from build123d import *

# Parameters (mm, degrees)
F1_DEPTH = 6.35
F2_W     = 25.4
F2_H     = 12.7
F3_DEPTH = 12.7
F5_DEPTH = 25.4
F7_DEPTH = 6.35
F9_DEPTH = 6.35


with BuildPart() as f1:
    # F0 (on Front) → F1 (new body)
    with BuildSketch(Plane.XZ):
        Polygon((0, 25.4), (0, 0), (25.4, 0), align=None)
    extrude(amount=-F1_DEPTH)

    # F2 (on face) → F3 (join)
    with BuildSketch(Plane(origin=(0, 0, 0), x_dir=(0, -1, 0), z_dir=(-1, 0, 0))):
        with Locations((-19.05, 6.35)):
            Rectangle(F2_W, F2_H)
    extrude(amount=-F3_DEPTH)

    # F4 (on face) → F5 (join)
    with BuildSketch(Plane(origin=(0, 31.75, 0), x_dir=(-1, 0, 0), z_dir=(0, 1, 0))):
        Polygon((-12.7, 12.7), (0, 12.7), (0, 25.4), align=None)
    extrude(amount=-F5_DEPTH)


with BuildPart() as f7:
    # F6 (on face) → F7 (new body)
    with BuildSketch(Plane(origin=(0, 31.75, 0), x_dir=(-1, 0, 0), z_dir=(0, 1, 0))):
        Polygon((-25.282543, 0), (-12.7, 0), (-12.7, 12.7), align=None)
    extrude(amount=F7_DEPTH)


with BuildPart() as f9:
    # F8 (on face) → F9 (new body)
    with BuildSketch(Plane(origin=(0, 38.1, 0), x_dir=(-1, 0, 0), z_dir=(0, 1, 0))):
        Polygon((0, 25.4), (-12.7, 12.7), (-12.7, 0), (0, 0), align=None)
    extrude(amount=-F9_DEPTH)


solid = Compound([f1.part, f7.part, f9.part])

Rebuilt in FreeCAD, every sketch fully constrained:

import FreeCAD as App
import Part
import Sketcher
Q = App.Units.Quantity


def add_polygon(sketch, points):
    """Adds a closed chain of lines whose ends are joined by coincident constraints."""
    first, n = sketch.GeometryCount, len(points)
    for a, b in zip(points, points[1:] + points[:1]):
        sketch.addGeometry(Part.LineSegment(App.Vector(*a, 0), App.Vector(*b, 0)), False)
    for i in range(n):
        sketch.addConstraint(Sketcher.Constraint("Coincident", first + i, 2, first + (i + 1) % n, 1))

doc = App.newDocument("Part")
body = doc.addObject("PartDesign::Body", "Body")

# Sketch on XZ plane
sketch1 = body.newObject("Sketcher::SketchObject", "Sketch")
sketch1.AttachmentSupport = (doc.getObject("XZ_Plane"), [""])
sketch1.MapMode = "FlatFace"
add_polygon(sketch1, [(0, 25.4), (0, 0), (25.4, 0)])  # lines 0-2
sketch1.addConstraint([
    Sketcher.Constraint("Vertical", 0),
    Sketcher.Constraint("Horizontal", 1),
    Sketcher.Constraint("Coincident", 0, 2, -1, 1),
    Sketcher.Constraint("Equal", 1, 0),
    Sketcher.Constraint("DistanceX", 1, 1, 1, 2, Q("1 in")),
])
pad1 = body.newObject("PartDesign::Pad", "Pad")
pad1.Profile = sketch1
pad1.Length = Q("0.25 in")
pad1.Reversed = True

# Sketch on YZ plane
sketch2 = body.newObject("Sketcher::SketchObject", "Sketch001")
sketch2.AttachmentSupport = (doc.getObject("YZ_Plane"), [""])
sketch2.MapMode = "FlatFace"
add_polygon(sketch2, [(31.75, 12.7), (31.75, 0), (6.35, 0), (6.35, 12.7)])  # lines 0-3
sketch2.addConstraint([
    Sketcher.Constraint("Vertical", 0),
    Sketcher.Constraint("Horizontal", 1),
    Sketcher.Constraint("Vertical", 2),
    Sketcher.Constraint("Horizontal", 3),
    Sketcher.Constraint("PointOnObject", 0, 2, -1),
    Sketcher.Constraint("DistanceX", 1, 2, 1, 1, Q("1 in")),
    Sketcher.Constraint("DistanceY", 0, 2, 0, 1, Q("0.5 in")),
    Sketcher.Constraint("DistanceX", -1, 1, 0, 2, Q("1.25 in")),
])
pad2 = body.newObject("PartDesign::Pad", "Pad001")
pad2.Profile = sketch2
pad2.Length = Q("0.5 in")

# Sketch on XZ plane
sketch3 = body.newObject("Sketcher::SketchObject", "Sketch002")
sketch3.AttachmentSupport = (doc.getObject("XZ_Plane"), [""])
sketch3.MapMode = "FlatFace"
sketch3.AttachmentOffset = App.Placement(App.Vector(0, 0, -1.25 * 25.4), App.Rotation())
add_polygon(sketch3, [(12.7, 12.7), (0, 12.7), (0, 25.4)])  # lines 0-2
sketch3.addConstraint([
    Sketcher.Constraint("Horizontal", 0),
    Sketcher.Constraint("Vertical", 1),
    Sketcher.Constraint("PointOnObject", 0, 2, -2),
    Sketcher.Constraint("Equal", 0, 1),
    Sketcher.Constraint("DistanceX", 0, 2, 0, 1, Q("0.5 in")),
    Sketcher.Constraint("DistanceY", -1, 1, 1, 2, Q("1 in")),
])
pad3 = body.newObject("PartDesign::Pad", "Pad002")
pad3.Profile = sketch3
pad3.Length = Q("1 in")
body2 = doc.addObject("PartDesign::Body", "Body001")

# Sketch on XZ plane
sketch4 = body2.newObject("Sketcher::SketchObject", "Sketch003")
sketch4.AttachmentSupport = (doc.getObject("XZ_Plane001"), [""])
sketch4.MapMode = "FlatFace"
sketch4.AttachmentOffset = App.Placement(App.Vector(0, 0, -1.25 * 25.4), App.Rotation())
add_polygon(sketch4, [(25.282543, 0), (12.7, 0), (12.7, 12.7)])  # lines 0-2
sketch4.addConstraint([
    Sketcher.Constraint("Horizontal", 0),
    Sketcher.Constraint("Vertical", 1),
    Sketcher.Constraint("PointOnObject", 0, 2, -1),
    Sketcher.Constraint("DistanceY", 1, 1, 1, 2, Q("0.5 in")),
    Sketcher.Constraint("DistanceX", -1, 1, 0, 2, Q("0.5 in")),
    Sketcher.Constraint("Distance", 2, Q("17.877651 mm")),
])
pad4 = body2.newObject("PartDesign::Pad", "Pad003")
pad4.Profile = sketch4
pad4.Length = Q("0.25 in")
pad4.Reversed = True
body3 = doc.addObject("PartDesign::Body", "Body002")

# Sketch on XZ plane
sketch5 = body3.newObject("Sketcher::SketchObject", "Sketch004")
sketch5.AttachmentSupport = (doc.getObject("XZ_Plane002"), [""])
sketch5.MapMode = "FlatFace"
sketch5.AttachmentOffset = App.Placement(App.Vector(0, 0, -1.5 * 25.4), App.Rotation())
add_polygon(sketch5, [(0, 25.4), (12.7, 12.7), (12.7, 0), (0, 0)])  # lines 0-3
sketch5.addConstraint([
    Sketcher.Constraint("Vertical", 1),
    Sketcher.Constraint("Horizontal", 2),
    Sketcher.Constraint("Vertical", 3),
    Sketcher.Constraint("Coincident", 2, 2, -1, 1),
    Sketcher.Constraint("Equal", 2, 1),
    Sketcher.Constraint("DistanceY", 3, 1, 3, 2, Q("1 in")),
    Sketcher.Constraint("DistanceX", 2, 2, 2, 1, Q("0.5 in")),
])
pad5 = body3.newObject("PartDesign::Pad", "Pad004")
pad5.Profile = sketch5
pad5.Length = Q("0.25 in")

doc.recompute()
